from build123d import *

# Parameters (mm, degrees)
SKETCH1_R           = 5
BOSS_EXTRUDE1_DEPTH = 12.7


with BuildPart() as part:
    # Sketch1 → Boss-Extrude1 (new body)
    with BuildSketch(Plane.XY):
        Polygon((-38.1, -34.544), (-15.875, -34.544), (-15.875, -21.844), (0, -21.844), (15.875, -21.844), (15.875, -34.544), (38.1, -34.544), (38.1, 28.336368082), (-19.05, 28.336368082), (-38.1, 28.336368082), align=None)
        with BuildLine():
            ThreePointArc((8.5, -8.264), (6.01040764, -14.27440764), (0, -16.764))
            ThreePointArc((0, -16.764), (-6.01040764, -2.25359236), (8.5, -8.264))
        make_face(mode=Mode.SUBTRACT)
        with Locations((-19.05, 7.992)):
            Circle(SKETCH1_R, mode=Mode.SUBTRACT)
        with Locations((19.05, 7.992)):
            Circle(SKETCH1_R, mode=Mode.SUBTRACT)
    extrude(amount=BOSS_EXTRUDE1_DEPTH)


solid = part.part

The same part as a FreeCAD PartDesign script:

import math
import FreeCAD as App
import Part
import Sketcher
Q = App.Units.Quantity


def add_polygon(sketch, points):
    """Adds a closed chain of lines whose ends are joined by coincident constraints."""
    first, n = sketch.GeometryCount, len(points)
    for a, b in zip(points, points[1:] + points[:1]):
        sketch.addGeometry(Part.LineSegment(App.Vector(*a, 0), App.Vector(*b, 0)), False)
    for i in range(n):
        sketch.addConstraint(Sketcher.Constraint("Coincident", first + i, 2, first + (i + 1) % n, 1))

doc = App.newDocument("Part")
body = doc.addObject("PartDesign::Body", "Body")

# Sketch on XY plane
sketch1 = body.newObject("Sketcher::SketchObject", "Sketch")
sketch1.AttachmentSupport = (doc.getObject("XY_Plane"), [""])
sketch1.MapMode = "FlatFace"
add_polygon(sketch1, [(-38, -35), (-16, -35), (-16, -22), (16, -22), (16, -35), (38, -35), (38, 28), (-38, 28)])  # lines 0-7
sketch1.addGeometry(Part.ArcOfCircle(Part.Circle(App.Vector(0, -8, 0), App.Vector(0, 0, 1), 8), math.radians(0), math.radians(270)), False)  # 8
sketch1.addGeometry(Part.ArcOfCircle(Part.Circle(App.Vector(0, -8, 0), App.Vector(0, 0, 1), 8), math.radians(-90), math.radians(0)), False)  # 9
sketch1.addGeometry(Part.Circle(App.Vector(-19, 8, 0), App.Vector(0, 0, 1), 5), False)  # 10
sketch1.addGeometry(Part.Circle(App.Vector(19, 8, 0), App.Vector(0, 0, 1), 5), False)  # 11
sketch1.addConstraint([
    Sketcher.Constraint("Tangent", 8, 1, 9, 2),
    Sketcher.Constraint("Coincident", 9, 1, 8, 2),
    Sketcher.Constraint("Horizontal", 0),
    Sketcher.Constraint("Vertical", 1),
    Sketcher.Constraint("Horizontal", 2),
    Sketcher.Constraint("Vertical", 3),
    Sketcher.Constraint("Horizontal", 4),
    Sketcher.Constraint("Vertical", 5),
    Sketcher.Constraint("Horizontal", 6),
    Sketcher.Constraint("Vertical", 7),
    Sketcher.Constraint("Equal", 10, 11),
    Sketcher.Constraint("Symmetric", 10, 3, 11, 3, -2),
    Sketcher.Constraint("Symmetric", 0, 2, 3, 2, -2),
    Sketcher.Constraint("PointOnObject", 8, 3, -2),
    Sketcher.Constraint("PointOnObject", 9, 1, -2),
    Sketcher.Constraint("Horizontal", 9, 3, 8, 1),
    Sketcher.Constraint("Equal", 0, 4),
    Sketcher.Constraint("DistanceX", 6, 2, 6, 1, Q("3 in")),
    Sketcher.Constraint("DistanceY", 1, 1, 1, 2, Q("0.5 in")),
    Sketcher.Constraint("DistanceX", 2, 1, 2, 2, Q("1.25 in")),
    Sketcher.Constraint("DistanceX", 10, 3, 11, 3, Q("1.5 in")),
    Sketcher.Constraint("DistanceY", 1, 2, 9, 1, Q("0.2 in")),
    Sketcher.Constraint("Diameter", 10, 10.0),
    Sketcher.Constraint("DistanceY", 0, 2, -1, 1, Q("1.36 in")),
    Sketcher.Constraint("Radius", 8, 8.5),
    Sketcher.Constraint("DistanceY", 8, 3, 10, 3, Q("0.64 in")),
    Sketcher.Constraint("DistanceY", 5, 1, 5, 2, 62.880368),
])
pad1 = body.newObject("PartDesign::Pad", "Pad")
pad1.Profile = sketch1
pad1.Length = Q("0.5 in")

doc.recompute()
